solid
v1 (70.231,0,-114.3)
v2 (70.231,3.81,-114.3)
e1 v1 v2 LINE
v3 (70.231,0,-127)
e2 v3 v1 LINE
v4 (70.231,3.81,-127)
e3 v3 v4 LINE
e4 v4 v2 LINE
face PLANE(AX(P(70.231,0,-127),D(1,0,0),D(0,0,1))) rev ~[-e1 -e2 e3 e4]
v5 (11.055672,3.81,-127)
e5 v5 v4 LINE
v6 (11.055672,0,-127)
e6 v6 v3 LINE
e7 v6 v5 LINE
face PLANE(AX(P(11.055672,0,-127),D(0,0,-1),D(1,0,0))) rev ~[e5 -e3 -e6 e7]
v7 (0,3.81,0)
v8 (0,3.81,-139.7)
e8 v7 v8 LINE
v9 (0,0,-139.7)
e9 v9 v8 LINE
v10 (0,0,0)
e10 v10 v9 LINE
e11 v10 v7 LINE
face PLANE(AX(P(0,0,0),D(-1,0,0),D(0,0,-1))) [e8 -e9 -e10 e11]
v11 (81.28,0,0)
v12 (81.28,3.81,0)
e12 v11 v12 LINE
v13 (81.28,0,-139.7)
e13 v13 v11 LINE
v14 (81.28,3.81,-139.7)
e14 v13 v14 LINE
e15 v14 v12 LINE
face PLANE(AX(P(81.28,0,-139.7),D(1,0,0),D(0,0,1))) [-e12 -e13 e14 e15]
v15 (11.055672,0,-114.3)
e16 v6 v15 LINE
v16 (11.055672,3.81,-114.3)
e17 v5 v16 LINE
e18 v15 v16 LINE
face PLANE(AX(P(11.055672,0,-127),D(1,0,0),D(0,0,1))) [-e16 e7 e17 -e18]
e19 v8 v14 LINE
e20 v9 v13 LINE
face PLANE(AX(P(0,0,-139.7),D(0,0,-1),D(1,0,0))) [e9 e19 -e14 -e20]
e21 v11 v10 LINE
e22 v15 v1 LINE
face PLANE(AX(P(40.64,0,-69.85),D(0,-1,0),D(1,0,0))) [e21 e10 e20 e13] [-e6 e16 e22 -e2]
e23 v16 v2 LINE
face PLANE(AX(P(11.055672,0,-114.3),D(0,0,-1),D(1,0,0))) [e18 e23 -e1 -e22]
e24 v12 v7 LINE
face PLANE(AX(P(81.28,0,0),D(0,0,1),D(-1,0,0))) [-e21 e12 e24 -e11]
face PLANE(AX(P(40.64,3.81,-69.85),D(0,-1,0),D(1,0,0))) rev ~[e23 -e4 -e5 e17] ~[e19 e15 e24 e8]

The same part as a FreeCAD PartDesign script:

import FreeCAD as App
import Part
import Sketcher

V = App.Vector
Q = App.Units.Quantity


def add_polygon(sketch, points):
    """Adds a closed chain of lines whose ends are joined by coincident constraints."""
    first, n = sketch.GeometryCount, len(points)
    for a, b in zip(points, points[1:] + points[:1]):
        sketch.addGeometry(Part.LineSegment(App.Vector(*a, 0), App.Vector(*b, 0)), False)
    for i in range(n):
        sketch.addConstraint(Sketcher.Constraint("Coincident", first + i, 2, first + (i + 1) % n, 1))

doc = App.newDocument("Part")
body = doc.addObject("PartDesign::Body", "Body")

# Sketch on XZ plane
sketch1 = body.newObject("Sketcher::SketchObject", "Sketch")
sketch1.AttachmentSupport = (doc.getObject("XZ_Plane"), [""])
sketch1.MapMode = "FlatFace"
add_polygon(sketch1, [(81, 0), (0, 0), (0, -140), (81, -140)])  # lines 0-3
add_polygon(sketch1, [(70, -127), (11, -127), (11, -114), (70, -114)])  # lines 4-7
sketch1.addConstraint(Sketcher.Constraint("Horizontal", 0))
sketch1.addConstraint(Sketcher.Constraint("Vertical", 1))
sketch1.addConstraint(Sketcher.Constraint("Horizontal", 2))
sketch1.addConstraint(Sketcher.Constraint("Vertical", 3))
sketch1.addConstraint(Sketcher.Constraint("Horizontal", 4))
sketch1.addConstraint(Sketcher.Constraint("Vertical", 5))
sketch1.addConstraint(Sketcher.Constraint("Horizontal", 6))
sketch1.addConstraint(Sketcher.Constraint("Vertical", 7))
sketch1.addConstraint(Sketcher.Constraint("Coincident", 0, 2, -1, 1))
sketch1.addConstraint(Sketcher.Constraint("DistanceX", 0, 2, 0, 1, Q("3.2 in")))
sketch1.addConstraint(Sketcher.Constraint("DistanceY", 1, 2, 1, 1, Q("5.5 in")))
sketch1.addConstraint(Sketcher.Constraint("DistanceY", 5, 1, 5, 2, Q("0.5 in")))
sketch1.addConstraint(Sketcher.Constraint("DistanceY", 4, 2, -1, 1, Q("5 in")))
sketch1.addConstraint(Sketcher.Constraint("DistanceX", -1, 1, 6, 2, Q("2.765 in")))
sketch1.addConstraint(Sketcher.Constraint("DistanceX", 4, 2, 4, 1, 59.175328))
pad1 = body.newObject("PartDesign::Pad", "Pad")
pad1.Profile = sketch1
pad1.Length = Q("0.15 in")
pad1.Reversed = True

doc.recompute()
